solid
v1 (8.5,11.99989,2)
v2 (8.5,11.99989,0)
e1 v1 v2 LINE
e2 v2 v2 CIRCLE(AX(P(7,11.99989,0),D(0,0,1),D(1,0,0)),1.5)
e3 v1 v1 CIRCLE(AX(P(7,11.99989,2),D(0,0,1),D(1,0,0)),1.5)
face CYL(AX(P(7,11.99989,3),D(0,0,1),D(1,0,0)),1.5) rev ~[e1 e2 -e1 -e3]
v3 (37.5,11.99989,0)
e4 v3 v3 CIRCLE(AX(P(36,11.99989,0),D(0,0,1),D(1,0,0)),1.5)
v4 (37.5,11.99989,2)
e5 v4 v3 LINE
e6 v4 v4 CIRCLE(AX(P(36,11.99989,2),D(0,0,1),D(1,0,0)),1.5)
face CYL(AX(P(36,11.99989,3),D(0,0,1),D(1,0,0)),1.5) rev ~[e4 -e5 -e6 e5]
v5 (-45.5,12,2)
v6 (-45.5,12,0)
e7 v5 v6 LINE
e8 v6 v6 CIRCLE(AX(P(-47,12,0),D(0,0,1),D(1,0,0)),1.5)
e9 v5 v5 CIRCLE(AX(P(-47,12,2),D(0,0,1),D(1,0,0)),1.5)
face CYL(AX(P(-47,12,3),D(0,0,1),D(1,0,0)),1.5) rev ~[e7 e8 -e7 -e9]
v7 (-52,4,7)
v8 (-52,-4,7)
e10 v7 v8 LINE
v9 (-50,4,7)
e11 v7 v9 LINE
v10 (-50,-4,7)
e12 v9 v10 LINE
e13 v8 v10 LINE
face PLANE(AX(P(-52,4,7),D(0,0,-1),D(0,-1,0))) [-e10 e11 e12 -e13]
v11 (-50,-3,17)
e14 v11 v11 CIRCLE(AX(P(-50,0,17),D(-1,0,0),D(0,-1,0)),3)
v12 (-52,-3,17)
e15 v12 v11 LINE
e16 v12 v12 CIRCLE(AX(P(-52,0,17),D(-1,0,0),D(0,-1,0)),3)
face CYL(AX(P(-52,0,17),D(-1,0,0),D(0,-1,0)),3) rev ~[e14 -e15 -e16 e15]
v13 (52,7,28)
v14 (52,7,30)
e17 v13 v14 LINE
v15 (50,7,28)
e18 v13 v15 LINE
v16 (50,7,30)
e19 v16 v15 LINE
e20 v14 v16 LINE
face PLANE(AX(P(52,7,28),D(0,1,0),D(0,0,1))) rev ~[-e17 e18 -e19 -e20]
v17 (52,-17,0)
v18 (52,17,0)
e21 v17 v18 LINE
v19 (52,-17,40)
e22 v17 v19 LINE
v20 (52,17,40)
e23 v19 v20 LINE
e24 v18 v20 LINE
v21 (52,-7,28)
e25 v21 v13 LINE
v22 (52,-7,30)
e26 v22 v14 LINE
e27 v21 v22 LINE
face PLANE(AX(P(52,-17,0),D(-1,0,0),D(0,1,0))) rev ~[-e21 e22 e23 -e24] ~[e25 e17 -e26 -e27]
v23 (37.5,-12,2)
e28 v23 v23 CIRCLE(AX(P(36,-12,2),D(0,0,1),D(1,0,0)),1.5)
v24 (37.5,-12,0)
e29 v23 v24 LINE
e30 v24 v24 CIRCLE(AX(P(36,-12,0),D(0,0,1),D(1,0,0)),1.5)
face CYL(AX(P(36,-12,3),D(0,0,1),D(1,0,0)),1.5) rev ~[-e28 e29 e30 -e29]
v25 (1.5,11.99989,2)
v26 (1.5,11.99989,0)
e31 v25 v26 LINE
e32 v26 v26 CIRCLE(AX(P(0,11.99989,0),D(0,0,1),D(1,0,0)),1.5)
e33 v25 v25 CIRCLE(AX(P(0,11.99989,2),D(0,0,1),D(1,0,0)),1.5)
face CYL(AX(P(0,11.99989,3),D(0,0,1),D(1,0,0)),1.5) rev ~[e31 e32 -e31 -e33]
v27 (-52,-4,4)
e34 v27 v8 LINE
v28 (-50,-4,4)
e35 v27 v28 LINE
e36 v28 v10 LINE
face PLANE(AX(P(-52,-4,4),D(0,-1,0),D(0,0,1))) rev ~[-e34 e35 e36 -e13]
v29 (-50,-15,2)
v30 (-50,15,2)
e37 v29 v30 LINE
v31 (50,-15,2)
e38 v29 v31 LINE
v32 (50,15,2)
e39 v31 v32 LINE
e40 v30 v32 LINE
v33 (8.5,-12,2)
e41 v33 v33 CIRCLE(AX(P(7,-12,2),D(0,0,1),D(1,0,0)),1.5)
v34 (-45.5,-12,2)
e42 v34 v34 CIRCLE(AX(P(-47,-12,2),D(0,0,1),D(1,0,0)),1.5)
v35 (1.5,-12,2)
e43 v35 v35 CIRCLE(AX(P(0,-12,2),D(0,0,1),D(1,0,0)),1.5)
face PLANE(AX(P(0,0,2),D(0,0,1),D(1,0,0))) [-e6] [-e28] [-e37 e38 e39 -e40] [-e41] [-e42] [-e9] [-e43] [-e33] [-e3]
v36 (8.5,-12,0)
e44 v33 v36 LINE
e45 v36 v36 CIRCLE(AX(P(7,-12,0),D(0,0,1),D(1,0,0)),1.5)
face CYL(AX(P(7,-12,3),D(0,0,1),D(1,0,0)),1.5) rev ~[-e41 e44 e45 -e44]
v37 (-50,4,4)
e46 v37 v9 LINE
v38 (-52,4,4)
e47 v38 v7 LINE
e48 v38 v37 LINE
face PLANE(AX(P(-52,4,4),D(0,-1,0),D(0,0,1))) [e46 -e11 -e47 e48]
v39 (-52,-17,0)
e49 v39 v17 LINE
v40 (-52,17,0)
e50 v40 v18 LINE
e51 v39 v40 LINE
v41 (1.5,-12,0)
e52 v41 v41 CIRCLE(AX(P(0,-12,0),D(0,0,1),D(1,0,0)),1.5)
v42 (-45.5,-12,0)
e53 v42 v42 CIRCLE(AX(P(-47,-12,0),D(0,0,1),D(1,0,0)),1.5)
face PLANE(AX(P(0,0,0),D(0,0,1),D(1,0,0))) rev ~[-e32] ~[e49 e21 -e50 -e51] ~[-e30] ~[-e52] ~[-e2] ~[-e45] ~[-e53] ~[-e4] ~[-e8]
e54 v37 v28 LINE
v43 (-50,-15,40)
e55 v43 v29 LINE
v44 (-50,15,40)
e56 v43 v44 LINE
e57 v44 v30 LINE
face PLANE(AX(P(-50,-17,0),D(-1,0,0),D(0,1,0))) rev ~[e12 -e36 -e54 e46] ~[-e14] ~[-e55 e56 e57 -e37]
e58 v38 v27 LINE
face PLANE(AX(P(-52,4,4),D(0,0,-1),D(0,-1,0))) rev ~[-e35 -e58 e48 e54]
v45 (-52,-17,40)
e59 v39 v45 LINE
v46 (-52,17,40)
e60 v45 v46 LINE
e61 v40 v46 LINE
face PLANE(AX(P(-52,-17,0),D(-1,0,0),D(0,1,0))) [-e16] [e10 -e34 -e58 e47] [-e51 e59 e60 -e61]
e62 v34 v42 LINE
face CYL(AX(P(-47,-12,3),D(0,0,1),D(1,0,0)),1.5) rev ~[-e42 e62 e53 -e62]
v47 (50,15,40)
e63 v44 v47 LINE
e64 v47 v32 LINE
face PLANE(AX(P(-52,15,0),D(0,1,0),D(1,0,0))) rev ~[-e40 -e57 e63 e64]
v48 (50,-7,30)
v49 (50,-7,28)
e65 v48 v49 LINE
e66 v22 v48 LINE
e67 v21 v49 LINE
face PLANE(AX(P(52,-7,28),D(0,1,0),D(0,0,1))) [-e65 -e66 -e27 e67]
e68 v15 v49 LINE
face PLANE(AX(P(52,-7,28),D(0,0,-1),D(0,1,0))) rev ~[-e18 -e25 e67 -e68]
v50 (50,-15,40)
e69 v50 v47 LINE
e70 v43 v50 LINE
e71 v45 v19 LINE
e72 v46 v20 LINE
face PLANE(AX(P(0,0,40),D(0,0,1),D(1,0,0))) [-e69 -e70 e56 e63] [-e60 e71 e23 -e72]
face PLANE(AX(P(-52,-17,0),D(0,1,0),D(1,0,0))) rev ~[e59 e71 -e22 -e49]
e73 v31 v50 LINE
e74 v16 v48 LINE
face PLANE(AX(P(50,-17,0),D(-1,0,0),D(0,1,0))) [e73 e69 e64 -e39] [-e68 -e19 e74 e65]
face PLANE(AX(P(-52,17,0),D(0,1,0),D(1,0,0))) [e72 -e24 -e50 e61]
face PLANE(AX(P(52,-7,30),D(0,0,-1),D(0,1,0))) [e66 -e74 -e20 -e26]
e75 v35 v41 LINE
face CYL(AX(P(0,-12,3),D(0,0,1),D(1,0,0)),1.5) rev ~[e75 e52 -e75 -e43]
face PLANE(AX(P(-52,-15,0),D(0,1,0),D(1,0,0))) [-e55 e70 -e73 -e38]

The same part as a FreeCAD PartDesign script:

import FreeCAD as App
import Part
import Sketcher
from FreeCAD import Vector
Q = App.Units.Quantity


def faces_at(feature, points):
    """Names of the faces that lie closest to the given points."""
    faces = feature.Shape.Faces
    near = lambda p: min(range(len(faces)), key=lambda i: faces[i].distToShape(Part.Vertex(*p))[0])
    return sorted({f"Face{near(p) + 1}" for p in points})

doc = App.newDocument("Part")
body = doc.addObject("PartDesign::Body", "Body")

# Sketch on XY plane
sketch1 = body.newObject("Sketcher::SketchObject", "Sketch")
sketch1.AttachmentSupport = (doc.getObject("XY_Plane"), [""])
sketch1.MapMode = "FlatFace"
sketch1.addGeometry([
    Part.LineSegment(Vector(-50, 15, 0), Vector(-50, -15, 0)),
    Part.LineSegment(Vector(-50, -15, 0), Vector(50, -15, 0)),
    Part.LineSegment(Vector(50, -15, 0), Vector(50, 15, 0)),
    Part.LineSegment(Vector(50, 15, 0), Vector(-50, 15, 0)),
], False)
sketch1.addConstraint([
    Sketcher.Constraint("Coincident", 0, 2, 1, 1),
    Sketcher.Constraint("Coincident", 1, 2, 2, 1),
    Sketcher.Constraint("Coincident", 2, 2, 3, 1),
    Sketcher.Constraint("Coincident", 3, 2, 0, 1),
    Sketcher.Constraint("Vertical", 0),
    Sketcher.Constraint("Horizontal", 1),
    Sketcher.Constraint("Vertical", 2),
    Sketcher.Constraint("Symmetric", 1, 2, 3, 2, -1, 1),
    Sketcher.Constraint("DistanceX", 1, 1, 1, 2, Q("100 mm")),
    Sketcher.Constraint("DistanceY", 0, 2, 0, 1, Q("30 mm")),
    Sketcher.Constraint("DistanceY", 2, 1, 2, 2, Q("29.99989 mm")),
])
pad1 = body.newObject("PartDesign::Pad", "Pad")
pad1.Profile = sketch1
pad1.Length = 3

# Sketch on XY plane
sketch2 = body.newObject("Sketcher::SketchObject", "Sketch001")
sketch2.AttachmentSupport = (doc.getObject("XY_Plane"), [""])
sketch2.MapMode = "FlatFace"
sketch2.AttachmentOffset = App.Placement(Vector(0, 0, 3), App.Rotation())
sketch2.addGeometry([
    Part.Circle(Vector(-47, 12, 0), Vector(0, 0, 1), 1.5),  # 0
    Part.Circle(Vector(-47, -12, 0), Vector(0, 0, 1), 1.5),  # 1
    Part.Circle(Vector(0, 12, 0), Vector(0, 0, 1), 1.5),  # 2
    Part.Circle(Vector(0, -12, 0), Vector(0, 0, 1), 1.5),  # 3
    Part.Circle(Vector(7, 12, 0), Vector(0, 0, 1), 1.5),  # 4
    Part.Circle(Vector(7, -12, 0), Vector(0, 0, 1), 1.5),  # 5
    Part.Circle(Vector(36, 12, 0), Vector(0, 0, 1), 1.5),  # 6
    Part.Circle(Vector(36, -12, 0), Vector(0, 0, 1), 1.5),  # 7
], False)
sketch2.addConstraint([
    Sketcher.Constraint("Equal", 0, 1),
    Sketcher.Constraint("Equal", 1, 2),
    Sketcher.Constraint("Equal", 2, 3),
    Sketcher.Constraint("Equal", 3, 4),
    Sketcher.Constraint("Equal", 4, 5),
    Sketcher.Constraint("Equal", 5, 6),
    Sketcher.Constraint("Equal", 6, 7),
    Sketcher.Constraint("Symmetric", 0, 3, 1, 3, -1),
    Sketcher.Constraint("PointOnObject", 2, 3, -2),
    Sketcher.Constraint("PointOnObject", 3, 3, -2),
    Sketcher.Constraint("Horizontal", 1, 3, 3, 3),
    Sketcher.Constraint("Horizontal", 2, 3, 4, 3),
    Sketcher.Constraint("Horizontal", 3, 3, 5, 3),
    Sketcher.Constraint("Horizontal", 4, 3, 6, 3),
    Sketcher.Constraint("Horizontal", 5, 3, 7, 3),
    Sketcher.Constraint("Vertical", 4, 3, 5, 3),
    Sketcher.Constraint("Vertical", 6, 3, 7, 3),
    Sketcher.Constraint("Diameter", 0, Q("3 mm")),
    Sketcher.Constraint("DistanceX", 0, 3, -1, 1, Q("47 mm")),
    Sketcher.Constraint("DistanceY", -1, 1, 0, 3, Q("12 mm")),
    Sketcher.Constraint("DistanceX", -1, 1, 4, 3, Q("7 mm")),
    Sketcher.Constraint("DistanceX", -1, 1, 6, 3, Q("36 mm")),
    Sketcher.Constraint("DistanceY", -1, 1, 2, 3, Q("11.99989 mm")),
])
pocket1 = body.newObject("PartDesign::Pocket", "Pocket")
pocket1.Profile = sketch2
pocket1.Length = 5

# Sketch on XY plane
sketch3 = body.newObject("Sketcher::SketchObject", "Sketch002")
sketch3.AttachmentSupport = (doc.getObject("XY_Plane"), [""])
sketch3.MapMode = "FlatFace"
sketch3.addGeometry([
    Part.LineSegment(Vector(-52, 17, 0), Vector(-52, -17, 0)),
    Part.LineSegment(Vector(-52, -17, 0), Vector(52, -17, 0)),
    Part.LineSegment(Vector(52, -17, 0), Vector(52, 17, 0)),
    Part.LineSegment(Vector(52, 17, 0), Vector(-52, 17, 0)),
], False)
sketch3.addConstraint([
    Sketcher.Constraint("Coincident", 0, 2, 1, 1),
    Sketcher.Constraint("Coincident", 1, 2, 2, 1),
    Sketcher.Constraint("Coincident", 2, 2, 3, 1),
    Sketcher.Constraint("Coincident", 3, 2, 0, 1),
    Sketcher.Constraint("Vertical", 0),
    Sketcher.Constraint("Horizontal", 1),
    Sketcher.Constraint("Vertical", 2),
    Sketcher.Constraint("Horizontal", 3),
    Sketcher.Constraint("Symmetric", 0, 2, 2, 2, -1, 1),
    Sketcher.Constraint("DistanceX", 1, 1, 1, 2, Q("104 mm")),
    Sketcher.Constraint("DistanceY", 0, 2, 0, 1, Q("34 mm")),
])
pad2 = body.newObject("PartDesign::Pad", "Pad001")
pad2.Profile = sketch3
pad2.Length = 40
doc.recompute()

thickness = body.newObject("PartDesign::Thickness", "Thickness")
thickness.Base = (pad2, faces_at(pad2, [(0, 0, 40)]))
thickness.Value = 2
thickness.Reversed = True
thickness.Join = "Arc"

# Sketch on XY plane
sketch4 = body.newObject("Sketcher::SketchObject", "Sketch003")
sketch4.AttachmentSupport = (doc.getObject("XY_Plane"), [""])
sketch4.MapMode = "FlatFace"
sketch4.AttachmentOffset = App.Placement(Vector(0, 0, 3), App.Rotation())
sketch4.addGeometry([
    Part.Circle(Vector(-47, 12, 0), Vector(0, 0, 1), 1.5),  # 0
    Part.Circle(Vector(-47, -12, 0), Vector(0, 0, 1), 1.5),  # 1
    Part.Circle(Vector(0, 12, 0), Vector(0, 0, 1), 1.5),  # 2
    Part.Circle(Vector(0, -12, 0), Vector(0, 0, 1), 1.5),  # 3
    Part.Circle(Vector(7, 12, 0), Vector(0, 0, 1), 1.5),  # 4
    Part.Circle(Vector(7, -12, 0), Vector(0, 0, 1), 1.5),  # 5
    Part.Circle(Vector(36, 12, 0), Vector(0, 0, 1), 1.5),  # 6
    Part.Circle(Vector(36, -12, 0), Vector(0, 0, 1), 1.5),  # 7
], False)
sketch4.addConstraint([
    Sketcher.Constraint("Equal", 0, 1),
    Sketcher.Constraint("Equal", 1, 2),
    Sketcher.Constraint("Equal", 2, 3),
    Sketcher.Constraint("Equal", 3, 4),
    Sketcher.Constraint("Equal", 4, 5),
    Sketcher.Constraint("Equal", 5, 6),
    Sketcher.Constraint("Equal", 6, 7),
    Sketcher.Constraint("Symmetric", 0, 3, 1, 3, -1),
    Sketcher.Constraint("PointOnObject", 2, 3, -2),
    Sketcher.Constraint("PointOnObject", 3, 3, -2),
    Sketcher.Constraint("Horizontal", 1, 3, 3, 3),
    Sketcher.Constraint("Horizontal", 2, 3, 4, 3),
    Sketcher.Constraint("Horizontal", 3, 3, 5, 3),
    Sketcher.Constraint("Horizontal", 4, 3, 6, 3),
    Sketcher.Constraint("Horizontal", 5, 3, 7, 3),
    Sketcher.Constraint("Vertical", 4, 3, 5, 3),
    Sketcher.Constraint("Vertical", 6, 3, 7, 3),
    Sketcher.Constraint("Diameter", 0, Q("3 mm")),
    Sketcher.Constraint("DistanceX", 0, 3, -1, 1, Q("47 mm")),
    Sketcher.Constraint("DistanceY", -1, 1, 0, 3, Q("12 mm")),
    Sketcher.Constraint("DistanceX", -1, 1, 4, 3, Q("7 mm")),
    Sketcher.Constraint("DistanceX", -1, 1, 6, 3, Q("36 mm")),
    Sketcher.Constraint("DistanceY", -1, 1, 2, 3, Q("11.99989 mm")),
])
pocket2 = body.newObject("PartDesign::Pocket", "Pocket001")
pocket2.Profile = sketch4
pocket2.Length = 5

# Sketch on YZ plane
sketch5 = body.newObject("Sketcher::SketchObject", "Sketch004")
sketch5.AttachmentSupport = (doc.getObject("YZ_Plane"), [""])
sketch5.MapMode = "FlatFace"
sketch5.AttachmentOffset = App.Placement(Vector(0, 0, -52), App.Rotation())
sketch5.addGeometry([
    Part.Circle(Vector(0, 17, 0), Vector(0, 0, 1), 3),  # 0
    Part.LineSegment(Vector(4, 7, 0), Vector(4, 4, 0)),  # 1
    Part.LineSegment(Vector(4, 4, 0), Vector(-4, 4, 0)),  # 2
    Part.LineSegment(Vector(-4, 4, 0), Vector(-4, 7, 0)),  # 3
    Part.LineSegment(Vector(-4, 7, 0), Vector(4, 7, 0)),  # 4
], False)
sketch5.addConstraint([
    Sketcher.Constraint("Coincident", 1, 2, 2, 1),
    Sketcher.Constraint("Coincident", 2, 2, 3, 1),
    Sketcher.Constraint("Coincident", 3, 2, 4, 1),
    Sketcher.Constraint("Coincident", 4, 2, 1, 1),
    Sketcher.Constraint("Vertical", 1),
    Sketcher.Constraint("Horizontal", 2),
    Sketcher.Constraint("Vertical", 3),
    Sketcher.Constraint("Horizontal", 4),
    Sketcher.Constraint("PointOnObject", 0, 3, -2),
    Sketcher.Constraint("Diameter", 0, Q("6 mm")),
    Sketcher.Constraint("DistanceX", 2, 2, 2, 1, Q("8 mm")),
    Sketcher.Constraint("DistanceY", 1, 2, 1, 1, Q("3 mm")),
    Sketcher.Constraint("DistanceY", -1, 1, 0, 3, Q("17 mm")),
    Sketcher.Constraint("DistanceX", -1, 1, 1, 2, Q("4 mm")),
    Sketcher.Constraint("DistanceY", -1, 1, 1, 2, Q("4 mm")),
])
pocket3 = body.newObject("PartDesign::Pocket", "Pocket002")
pocket3.Profile = sketch5
pocket3.Length = 5
pocket3.Reversed = True

# Sketch on YZ plane
sketch6 = body.newObject("Sketcher::SketchObject", "Sketch005")
sketch6.AttachmentSupport = (doc.getObject("YZ_Plane"), [""])
sketch6.MapMode = "FlatFace"
sketch6.AttachmentOffset = App.Placement(Vector(0, 0, 52), App.Rotation())
sketch6.addGeometry([
    Part.LineSegment(Vector(-7, 30, 0), Vector(-7, 28, 0)),
    Part.LineSegment(Vector(-7, 28, 0), Vector(7, 28, 0)),
    Part.LineSegment(Vector(7, 28, 0), Vector(7, 30, 0)),
    Part.LineSegment(Vector(7, 30, 0), Vector(-7, 30, 0)),
], False)
sketch6.addConstraint([
    Sketcher.Constraint("Coincident", 0, 2, 1, 1),
    Sketcher.Constraint("Coincident", 1, 2, 2, 1),
    Sketcher.Constraint("Coincident", 2, 2, 3, 1),
    Sketcher.Constraint("Coincident", 3, 2, 0, 1),
    Sketcher.Constraint("Vertical", 0),
    Sketcher.Constraint("Horizontal", 1),
    Sketcher.Constraint("Vertical", 2),
    Sketcher.Constraint("Horizontal", 3),
    Sketcher.Constraint("DistanceX", 1, 1, 1, 2, Q("14 mm")),
    Sketcher.Constraint("DistanceY", 0, 2, 0, 1, Q("2 mm")),
    Sketcher.Constraint("DistanceX", 0, 2, -1, 1, Q("7 mm")),
    Sketcher.Constraint("DistanceY", -1, 1, 0, 2, Q("28 mm")),
])
pocket4 = body.newObject("PartDesign::Pocket", "Pocket003")
pocket4.Profile = sketch6
pocket4.Length = 5

doc.recompute()
